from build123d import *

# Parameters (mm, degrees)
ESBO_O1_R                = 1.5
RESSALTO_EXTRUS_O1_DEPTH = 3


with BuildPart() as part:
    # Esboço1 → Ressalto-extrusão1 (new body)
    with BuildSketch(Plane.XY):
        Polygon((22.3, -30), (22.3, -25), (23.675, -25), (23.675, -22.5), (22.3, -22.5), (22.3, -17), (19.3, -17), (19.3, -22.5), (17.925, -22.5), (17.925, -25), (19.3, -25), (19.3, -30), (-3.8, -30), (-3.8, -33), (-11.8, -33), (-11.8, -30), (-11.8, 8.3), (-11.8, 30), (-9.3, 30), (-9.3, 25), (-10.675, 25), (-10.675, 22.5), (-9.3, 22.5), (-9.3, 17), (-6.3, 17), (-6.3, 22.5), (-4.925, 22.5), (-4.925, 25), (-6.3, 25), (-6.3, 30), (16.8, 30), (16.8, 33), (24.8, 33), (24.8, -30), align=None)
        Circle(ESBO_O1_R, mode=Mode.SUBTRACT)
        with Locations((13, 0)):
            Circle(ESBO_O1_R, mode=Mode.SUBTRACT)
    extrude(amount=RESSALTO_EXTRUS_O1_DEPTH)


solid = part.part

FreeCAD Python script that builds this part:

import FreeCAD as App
import Part
import Sketcher
Q = App.Units.Quantity


def add_polygon(sketch, points):
    """Adds a closed chain of lines whose ends are joined by coincident constraints."""
    first, n = sketch.GeometryCount, len(points)
    for a, b in zip(points, points[1:] + points[:1]):
        sketch.addGeometry(Part.LineSegment(App.Vector(*a, 0), App.Vector(*b, 0)), False)
    for i in range(n):
        sketch.addConstraint(Sketcher.Constraint("Coincident", first + i, 2, first + (i + 1) % n, 1))

doc = App.newDocument("Part")
body = doc.addObject("PartDesign::Body", "Body")

sketch1 = body.newObject("Sketcher::SketchObject", "Sketch")
sketch1.AttachmentSupport = (doc.getObject("XY_Plane"), [""])
sketch1.MapMode = "FlatFace"
add_polygon(sketch1, [(22.3, -25), (22.3, -30), (24.8, -30), (24.8, 33), (16.8, 33), (16.8, 30), (-6.3, 30), (-6.3, 25), (-4.9, 25), (-4.9, 22.5), (-6.3, 22.5), (-6.3, 17), (-9.3, 17), (-9.3, 22.5), (-10.7, 22.5), (-10.7, 25), (-9.3, 25), (-9.3, 30), (-11.8, 30), (-11.8, -33), (-3.8, -33), (-3.8, -30), (19.3, -30), (19.3, -25), (17.9, -25), (17.9, -22.5), (19.3, -22.5), (19.3, -17), (22.3, -17), (22.3, -22.5), (23.7, -22.5), (23.7, -25)])
sketch1.addGeometry(Part.Circle(App.Vector(13, 0, 0), App.Vector(0, 0, 1), 1.5), False)
sketch1.addGeometry(Part.Circle(App.Vector(0, 0, 0), App.Vector(0, 0, 1), 1.5), False)
sketch1.addConstraint([
    Sketcher.Constraint("Vertical", 0),
    Sketcher.Constraint("Horizontal", 1),
    Sketcher.Constraint("Vertical", 2),
    Sketcher.Constraint("Horizontal", 3),
    Sketcher.Constraint("Vertical", 4),
    Sketcher.Constraint("Horizontal", 5),
    Sketcher.Constraint("Vertical", 6),
    Sketcher.Constraint("Horizontal", 7),
    Sketcher.Constraint("Vertical", 8),
    Sketcher.Constraint("Horizontal", 9),
    Sketcher.Constraint("Vertical", 10),
    Sketcher.Constraint("Horizontal", 11),
    Sketcher.Constraint("Vertical", 12),
    Sketcher.Constraint("Horizontal", 13),
    Sketcher.Constraint("Vertical", 14),
    Sketcher.Constraint("Horizontal", 15),
    Sketcher.Constraint("Vertical", 16),
    Sketcher.Constraint("Horizontal", 17),
    Sketcher.Constraint("Vertical", 18),
    Sketcher.Constraint("Horizontal", 19),
    Sketcher.Constraint("Vertical", 20),
    Sketcher.Constraint("Horizontal", 21),
    Sketcher.Constraint("Vertical", 22),
    Sketcher.Constraint("Horizontal", 23),
    Sketcher.Constraint("Vertical", 24),
    Sketcher.Constraint("Horizontal", 25),
    Sketcher.Constraint("Vertical", 26),
    Sketcher.Constraint("Horizontal", 27),
    Sketcher.Constraint("Vertical", 28),
    Sketcher.Constraint("Horizontal", 29),
    Sketcher.Constraint("Vertical", 30),
    Sketcher.Constraint("Horizontal", 31),
    Sketcher.Constraint("Coincident", 33, 3, -1, 1),
    Sketcher.Constraint("Equal", 32, 33),
    Sketcher.Constraint("PointOnObject", 32, 3, -1),
    Sketcher.Constraint("Horizontal", 9, 2, 12, 2),
    Sketcher.Constraint("Horizontal", 7, 2, 14, 2),
    Sketcher.Constraint("Horizontal", 5, 2, 16, 2),
    Sketcher.Constraint("Horizontal", 1, 2, 20, 2),
    Sketcher.Constraint("Horizontal", 25, 2, 28, 2),
    Sketcher.Constraint("Horizontal", 23, 2, 30, 2),
    Sketcher.Constraint("Vertical", 6, 2, 9, 2),
    Sketcher.Constraint("Vertical", 12, 2, 15, 2),
    Sketcher.Constraint("Vertical", 22, 2, 25, 2),
    Sketcher.Constraint("Vertical", 0, 2, 27, 2),
    Sketcher.Constraint("Equal", 9, 13),
    Sketcher.Constraint("Equal", 1, 17),
    Sketcher.Constraint("Equal", 3, 19),
    Sketcher.Constraint("Equal", 5, 21),
    Sketcher.Constraint("Equal", 15, 23),
    Sketcher.Constraint("Equal", 25, 29),
    Sketcher.Constraint("Equal", 27, 4),
    Sketcher.Constraint("Equal", 0, 6),
    Sketcher.Constraint("Equal", 17, 8),
    Sketcher.Constraint("Equal", 2, 18),
    Sketcher.Constraint("Equal", 14, 24),
    Sketcher.Constraint("Equal", 12, 26),
    Sketcher.Constraint("Diameter", 32, Q("3 mm")),
    Sketcher.Constraint("DistanceX", 3, 2, 3, 1, Q("8 mm")),
    Sketcher.Constraint("DistanceX", 11, 2, 11, 1, Q("3 mm")),
    Sketcher.Constraint("DistanceY", 0, 2, 0, 1, Q("5 mm")),
    Sketcher.Constraint("DistanceY", 2, 1, 2, 2, Q("63 mm")),
    Sketcher.Constraint("DistanceX", 1, 1, 1, 2, Q("2.5 mm")),
    Sketcher.Constraint("DistanceX", 5, 2, 5, 1, Q("23.1 mm")),
    Sketcher.Constraint("DistanceY", 10, 2, 10, 1, Q("5.5 mm")),
    Sketcher.Constraint("DistanceX", -1, 1, 32, 3, Q("13 mm")),
    Sketcher.Constraint("DistanceY", 0, 2, -1, 1, Q("30 mm")),
    Sketcher.Constraint("DistanceX", -1, 1, 0, 2, Q("22.3 mm")),
    Sketcher.Constraint("DistanceX", 7, 1, 7, 2, Q("1.375 mm")),
])
pad1 = body.newObject("PartDesign::Pad", "Pad")
pad1.Profile = sketch1
pad1.Length = 3

doc.recompute()
